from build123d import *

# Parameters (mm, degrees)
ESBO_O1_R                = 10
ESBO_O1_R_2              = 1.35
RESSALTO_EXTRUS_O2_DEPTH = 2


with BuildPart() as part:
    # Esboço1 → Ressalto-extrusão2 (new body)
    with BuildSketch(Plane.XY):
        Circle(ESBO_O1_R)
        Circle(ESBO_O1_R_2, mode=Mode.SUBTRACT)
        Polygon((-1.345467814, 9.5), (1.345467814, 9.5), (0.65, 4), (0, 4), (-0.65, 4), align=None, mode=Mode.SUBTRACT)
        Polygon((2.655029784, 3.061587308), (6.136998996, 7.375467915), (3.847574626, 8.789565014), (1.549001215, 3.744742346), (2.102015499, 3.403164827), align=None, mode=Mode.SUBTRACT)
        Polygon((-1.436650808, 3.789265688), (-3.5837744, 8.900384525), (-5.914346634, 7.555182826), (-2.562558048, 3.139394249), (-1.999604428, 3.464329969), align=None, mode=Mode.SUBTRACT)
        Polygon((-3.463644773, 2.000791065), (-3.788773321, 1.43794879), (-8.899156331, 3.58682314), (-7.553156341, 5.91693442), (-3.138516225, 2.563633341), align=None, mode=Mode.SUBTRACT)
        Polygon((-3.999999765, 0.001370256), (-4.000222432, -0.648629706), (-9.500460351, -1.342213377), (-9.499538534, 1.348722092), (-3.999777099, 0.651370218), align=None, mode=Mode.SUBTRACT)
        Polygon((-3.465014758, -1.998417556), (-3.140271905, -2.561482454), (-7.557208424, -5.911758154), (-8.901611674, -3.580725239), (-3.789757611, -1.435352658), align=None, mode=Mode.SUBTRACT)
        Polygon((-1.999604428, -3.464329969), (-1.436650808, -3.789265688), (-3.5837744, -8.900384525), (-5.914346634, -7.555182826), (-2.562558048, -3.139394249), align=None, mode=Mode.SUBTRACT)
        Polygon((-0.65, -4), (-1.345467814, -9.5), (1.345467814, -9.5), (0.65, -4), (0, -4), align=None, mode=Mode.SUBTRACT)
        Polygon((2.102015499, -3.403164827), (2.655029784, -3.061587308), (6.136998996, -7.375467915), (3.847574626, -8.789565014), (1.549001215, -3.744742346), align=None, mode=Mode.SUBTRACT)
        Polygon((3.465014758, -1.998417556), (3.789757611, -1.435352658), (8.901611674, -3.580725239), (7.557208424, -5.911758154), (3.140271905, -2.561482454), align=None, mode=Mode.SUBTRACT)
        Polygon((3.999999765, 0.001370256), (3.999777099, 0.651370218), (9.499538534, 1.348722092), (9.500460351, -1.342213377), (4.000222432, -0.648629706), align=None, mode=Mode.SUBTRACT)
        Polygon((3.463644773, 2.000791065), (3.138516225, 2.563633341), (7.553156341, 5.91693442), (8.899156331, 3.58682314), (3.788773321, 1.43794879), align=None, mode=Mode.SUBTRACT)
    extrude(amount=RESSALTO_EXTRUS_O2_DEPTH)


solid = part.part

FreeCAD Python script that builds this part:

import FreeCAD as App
import Part
import Sketcher

V = App.Vector
Q = App.Units.Quantity

doc = App.newDocument("Part")
body = doc.addObject("PartDesign::Body", "Body")

# Sketch on XY plane
sketch1 = body.newObject("Sketcher::SketchObject", "Sketch")
sketch1.AttachmentSupport = (doc.getObject("XY_Plane"), [""])
sketch1.MapMode = "FlatFace"
sketch1.addGeometry([
    Part.Circle(V(0, 0, 0), V(0, 0, 1), 10),  # 0
    Part.LineSegment(V(-2.6, -3.1, 0), V(-2, -3.5, 0)),  # 1
    Part.LineSegment(V(-2, -3.5, 0), V(-1.4, -3.8, 0)),  # 2
    Part.LineSegment(V(-1.4, -3.8, 0), V(-3.6, -8.9, 0)),  # 3
    Part.LineSegment(V(-3.6, -8.9, 0), V(-5.9, -7.6, 0)),  # 4
    Part.LineSegment(V(-5.9, -7.6, 0), V(-2.6, -3.1, 0)),  # 5
    Part.LineSegment(V(-3.8, -1.4, 0), V(-3.1, -2.6, 0)),  # 6
    Part.LineSegment(V(-3.1, -2.6, 0), V(-7.6, -5.9, 0)),  # 7
    Part.LineSegment(V(-7.6, -5.9, 0), V(-8.9, -3.6, 0)),  # 8
    Part.LineSegment(V(-8.9, -3.6, 0), V(-3.8, -1.4, 0)),  # 9
    Part.LineSegment(V(-1.3, -9.5, 0), V(-0.7, -4, 0)),  # 10
    Part.LineSegment(V(-0.7, -4, 0), V(0.7, -4, 0)),  # 11
    Part.LineSegment(V(0.7, -4, 0), V(1.3, -9.5, 0)),  # 12
    Part.LineSegment(V(1.3, -9.5, 0), V(-1.3, -9.5, 0)),  # 13
    Part.LineSegment(V(1.5, -3.7, 0), V(2.1, -3.4, 0)),  # 14
    Part.LineSegment(V(2.1, -3.4, 0), V(2.7, -3.1, 0)),  # 15
    Part.LineSegment(V(2.7, -3.1, 0), V(6.1, -7.4, 0)),  # 16
    Part.LineSegment(V(6.1, -7.4, 0), V(3.8, -8.8, 0)),  # 17
    Part.LineSegment(V(3.8, -8.8, 0), V(1.5, -3.7, 0)),  # 18
    Part.LineSegment(V(3.1, -2.6, 0), V(3.8, -1.4, 0)),  # 19
    Part.LineSegment(V(3.8, -1.4, 0), V(8.9, -3.6, 0)),  # 20
    Part.LineSegment(V(8.9, -3.6, 0), V(7.6, -5.9, 0)),  # 21
    Part.LineSegment(V(7.6, -5.9, 0), V(3.1, -2.6, 0)),  # 22
    Part.LineSegment(V(-4, 0.7, 0), V(-4, 0, 0)),  # 23
    Part.LineSegment(V(-4, 0, 0), V(-4, -0.6, 0)),  # 24
    Part.LineSegment(V(-4, -0.6, 0), V(-9.5, -1.3, 0)),  # 25
    Part.LineSegment(V(-9.5, -1.3, 0), V(-9.5, 1.3, 0)),  # 26
    Part.LineSegment(V(-9.5, 1.3, 0), V(-4, 0.7, 0)),  # 27
    Part.LineSegment(V(-3.1, 2.6, 0), V(-3.5, 2, 0)),  # 28
    Part.LineSegment(V(-3.5, 2, 0), V(-3.8, 1.4, 0)),  # 29
    Part.LineSegment(V(-3.8, 1.4, 0), V(-8.9, 3.6, 0)),  # 30
    Part.LineSegment(V(-8.9, 3.6, 0), V(-7.6, 5.9, 0)),  # 31
    Part.LineSegment(V(-7.6, 5.9, 0), V(-3.1, 2.6, 0)),  # 32
    Part.LineSegment(V(-3.6, 8.9, 0), V(-1.4, 3.8, 0)),  # 33
    Part.LineSegment(V(-1.4, 3.8, 0), V(-2, 3.5, 0)),  # 34
    Part.LineSegment(V(-2, 3.5, 0), V(-2.6, 3.1, 0)),  # 35
    Part.LineSegment(V(-2.6, 3.1, 0), V(-5.9, 7.6, 0)),  # 36
    Part.LineSegment(V(-5.9, 7.6, 0), V(-3.6, 8.9, 0)),  # 37
    Part.Circle(V(0, 0, 0), V(0, 0, 1), 1.4),  # 38
    Part.LineSegment(V(4, -0.6, 0), V(4, 0, 0)),  # 39
    Part.LineSegment(V(4, 0, 0), V(4, 0.7, 0)),  # 40
    Part.LineSegment(V(4, 0.7, 0), V(9.5, 1.3, 0)),  # 41
    Part.LineSegment(V(9.5, 1.3, 0), V(9.5, -1.3, 0)),  # 42
    Part.LineSegment(V(9.5, -1.3, 0), V(4, -0.6, 0)),  # 43
    Part.LineSegment(V(3.8, 1.4, 0), V(3.5, 2, 0)),  # 44
    Part.LineSegment(V(3.5, 2, 0), V(3.1, 2.6, 0)),  # 45
    Part.LineSegment(V(3.1, 2.6, 0), V(7.6, 5.9, 0)),  # 46
    Part.LineSegment(V(7.6, 5.9, 0), V(8.9, 3.6, 0)),  # 47
    Part.LineSegment(V(8.9, 3.6, 0), V(3.8, 1.4, 0)),  # 48
    Part.LineSegment(V(-0.7, 4, 0), V(-1.3, 9.5, 0)),  # 49
    Part.LineSegment(V(-1.3, 9.5, 0), V(1.3, 9.5, 0)),  # 50
    Part.LineSegment(V(1.3, 9.5, 0), V(0.7, 4, 0)),  # 51
    Part.LineSegment(V(0.7, 4, 0), V(-0.7, 4, 0)),  # 52
    Part.LineSegment(V(6.1, 7.4, 0), V(2.7, 3.1, 0)),  # 53
    Part.LineSegment(V(2.7, 3.1, 0), V(2.1, 3.4, 0)),  # 54
    Part.LineSegment(V(2.1, 3.4, 0), V(1.5, 3.7, 0)),  # 55
    Part.LineSegment(V(1.5, 3.7, 0), V(3.8, 8.8, 0)),  # 56
    Part.LineSegment(V(3.8, 8.8, 0), V(6.1, 7.4, 0)),  # 57
], False)
sketch1.addConstraint([
    Sketcher.Constraint("Coincident", 1, 2, 2, 1),
    Sketcher.Constraint("Coincident", 2, 2, 3, 1),
    Sketcher.Constraint("Coincident", 3, 2, 4, 1),
    Sketcher.Constraint("Coincident", 4, 2, 5, 1),
    Sketcher.Constraint("Coincident", 5, 2, 1, 1),
    Sketcher.Constraint("Coincident", 6, 2, 7, 1),
    Sketcher.Constraint("Coincident", 7, 2, 8, 1),
    Sketcher.Constraint("Coincident", 8, 2, 9, 1),
    Sketcher.Constraint("Coincident", 9, 2, 6, 1),
    Sketcher.Constraint("Coincident", 10, 2, 11, 1),
    Sketcher.Constraint("Coincident", 11, 2, 12, 1),
    Sketcher.Constraint("Coincident", 12, 2, 13, 1),
    Sketcher.Constraint("Coincident", 13, 2, 10, 1),
    Sketcher.Constraint("Coincident", 14, 2, 15, 1),
    Sketcher.Constraint("Coincident", 15, 2, 16, 1),
    Sketcher.Constraint("Coincident", 16, 2, 17, 1),
    Sketcher.Constraint("Coincident", 17, 2, 18, 1),
    Sketcher.Constraint("Coincident", 18, 2, 14, 1),
    Sketcher.Constraint("Coincident", 19, 2, 20, 1),
    Sketcher.Constraint("Coincident", 20, 2, 21, 1),
    Sketcher.Constraint("Coincident", 21, 2, 22, 1),
    Sketcher.Constraint("Coincident", 22, 2, 19, 1),
    Sketcher.Constraint("Coincident", 23, 2, 24, 1),
    Sketcher.Constraint("Coincident", 24, 2, 25, 1),
    Sketcher.Constraint("Coincident", 25, 2, 26, 1),
    Sketcher.Constraint("Coincident", 26, 2, 27, 1),
    Sketcher.Constraint("Coincident", 27, 2, 23, 1),
    Sketcher.Constraint("Coincident", 28, 2, 29, 1),
    Sketcher.Constraint("Coincident", 29, 2, 30, 1),
    Sketcher.Constraint("Coincident", 30, 2, 31, 1),
    Sketcher.Constraint("Coincident", 31, 2, 32, 1),
    Sketcher.Constraint("Coincident", 32, 2, 28, 1),
    Sketcher.Constraint("Coincident", 33, 2, 34, 1),
    Sketcher.Constraint("Coincident", 34, 2, 35, 1),
    Sketcher.Constraint("Coincident", 35, 2, 36, 1),
    Sketcher.Constraint("Coincident", 36, 2, 37, 1),
    Sketcher.Constraint("Coincident", 37, 2, 33, 1),
    Sketcher.Constraint("Coincident", 39, 2, 40, 1),
    Sketcher.Constraint("Coincident", 40, 2, 41, 1),
    Sketcher.Constraint("Coincident", 41, 2, 42, 1),
    Sketcher.Constraint("Coincident", 42, 2, 43, 1),
    Sketcher.Constraint("Coincident", 43, 2, 39, 1),
    Sketcher.Constraint("Coincident", 44, 2, 45, 1),
    Sketcher.Constraint("Coincident", 45, 2, 46, 1),
    Sketcher.Constraint("Coincident", 46, 2, 47, 1),
    Sketcher.Constraint("Coincident", 47, 2, 48, 1),
    Sketcher.Constraint("Coincident", 48, 2, 44, 1),
    Sketcher.Constraint("Coincident", 49, 2, 50, 1),
    Sketcher.Constraint("Coincident", 50, 2, 51, 1),
    Sketcher.Constraint("Coincident", 51, 2, 52, 1),
    Sketcher.Constraint("Coincident", 52, 2, 49, 1),
    Sketcher.Constraint("Coincident", 53, 2, 54, 1),
    Sketcher.Constraint("Coincident", 54, 2, 55, 1),
    Sketcher.Constraint("Coincident", 55, 2, 56, 1),
    Sketcher.Constraint("Coincident", 56, 2, 57, 1),
    Sketcher.Constraint("Coincident", 57, 2, 53, 1),
    Sketcher.Constraint("Horizontal", 11),
    Sketcher.Constraint("Horizontal", 13),
    Sketcher.Constraint("Horizontal", 50),
    Sketcher.Constraint("Horizontal", 52),
    Sketcher.Constraint("Coincident", 0, 3, -1, 1),
    Sketcher.Constraint("Coincident", 38, 3, -1, 1),
    Sketcher.Constraint("Symmetric", 12, 2, 49, 2, -1, 1),
    Sketcher.Constraint("Symmetric", 10, 2, 51, 2, -1, 1),
    Sketcher.Constraint("Symmetric", 9, 2, 19, 2, -2),
    Sketcher.Constraint("Symmetric", 8, 2, 20, 2, -2),
    Sketcher.Constraint("Symmetric", 7, 2, 21, 2, -2),
    Sketcher.Constraint("Symmetric", 6, 2, 22, 2, -2),
    Sketcher.Constraint("Symmetric", 23, 2, 39, 2, -2),
    Sketcher.Constraint("Symmetric", 27, 2, 40, 2, -2),
    Sketcher.Constraint("Symmetric", 26, 2, 41, 2, -2),
    Sketcher.Constraint("Symmetric", 25, 2, 42, 2, -2),
    Sketcher.Constraint("Symmetric", 24, 2, 43, 2, -2),
    Sketcher.Constraint("Symmetric", 28, 2, 44, 2, -2),
    Sketcher.Constraint("Symmetric", 32, 2, 45, 2, -2),
    Sketcher.Constraint("Symmetric", 31, 2, 46, 2, -2),
    Sketcher.Constraint("Symmetric", 30, 2, 47, 2, -2),
    Sketcher.Constraint("Symmetric", 29, 2, 48, 2, -2),
    Sketcher.Constraint("Symmetric", 2, 2, 33, 2, -1),
    Sketcher.Constraint("Symmetric", 1, 2, 34, 2, -1),
    Sketcher.Constraint("Symmetric", 5, 2, 35, 2, -1),
    Sketcher.Constraint("Symmetric", 4, 2, 36, 2, -1),
    Sketcher.Constraint("Symmetric", 3, 2, 37, 2, -1),
    Sketcher.Constraint("Symmetric", 15, 2, 53, 2, -1),
    Sketcher.Constraint("Symmetric", 14, 2, 54, 2, -1),
    Sketcher.Constraint("Symmetric", 18, 2, 55, 2, -1),
    Sketcher.Constraint("Symmetric", 17, 2, 56, 2, -1),
    Sketcher.Constraint("Symmetric", 16, 2, 57, 2, -1),
    Sketcher.Constraint("Parallel", 1, 2),
    Sketcher.Constraint("Parallel", 2, 4),
    Sketcher.Constraint("Parallel", 6, 8),
    Sketcher.Constraint("Parallel", 14, 15),
    Sketcher.Constraint("Parallel", 15, 17),
    Sketcher.Constraint("Parallel", 23, 24),
    Sketcher.Constraint("Parallel", 24, 26),
    Sketcher.Constraint("Parallel", 28, 29),
    Sketcher.Constraint("Parallel", 29, 31),
    Sketcher.Constraint("Parallel", 12, 49),
    Sketcher.Constraint("Parallel", 10, 51),
    Sketcher.Constraint("Vertical", 13, 2, 49, 2),
    Sketcher.Constraint("Vertical", 11, 2, 51, 2),
    Sketcher.Constraint("Equal", 1, 2),
    Sketcher.Constraint("Equal", 3, 5),
    Sketcher.Constraint("Equal", 5, 7),
    Sketcher.Constraint("Equal", 4, 8),
    Sketcher.Constraint("Equal", 7, 9),
    Sketcher.Constraint("Equal", 9, 10),
    Sketcher.Constraint("Equal", 2, 14),
    Sketcher.Constraint("Equal", 14, 15),
    Sketcher.Constraint("Equal", 12, 16),
    Sketcher.Constraint("Equal", 8, 17),
    Sketcher.Constraint("Equal", 16, 18),
    Sketcher.Constraint("Equal", 15, 23),
    Sketcher.Constraint("Equal", 23, 24),
    Sketcher.Constraint("Equal", 22, 25),
    Sketcher.Constraint("Equal", 21, 26),
    Sketcher.Constraint("Equal", 25, 27),
    Sketcher.Constraint("Equal", 24, 28),
    Sketcher.Constraint("Equal", 28, 29),
    Sketcher.Constraint("Equal", 27, 30),
    Sketcher.Constraint("Equal", 26, 31),
    Sketcher.Constraint("Equal", 30, 32),
    Sketcher.Constraint("Diameter", 0, Q("20 mm")),
    Sketcher.Constraint("Diameter", 38, Q("2.7 mm")),
    Sketcher.Constraint("DistanceX", 11, 1, 11, 2, Q("1.3 mm")),
    Sketcher.Constraint("DistanceY", 10, 2, -1, 1, Q("4 mm")),
    Sketcher.Constraint("DistanceX", 23, 2, -1, 1, Q("4 mm")),
    Sketcher.Constraint("Distance", 6, Q("1.3 mm")),
    Sketcher.Constraint("DistanceY", 12, 2, -1, 1, Q("9.5 mm")),
    Sketcher.Constraint("DistanceY", 24, 2, 27, 2, Q("1.3 mm")),
    Sketcher.Constraint("DistanceX", -1, 1, 16, 2, Q("6.136999 mm")),
    Sketcher.Constraint("DistanceX", -1, 1, 18, 2, Q("1.549001 mm")),
    Sketcher.Constraint("DistanceX", 30, 2, 31, 2, Q("1.346 mm")),
    Sketcher.Constraint("DistanceY", 3, 2, 4, 2, Q("1.345202 mm")),
    Sketcher.Constraint("DistanceX", 9, 2, 5, 2, Q("1.2272 mm")),
    Sketcher.Constraint("DistanceY", 2, 2, 14, 2, Q("0.386101 mm")),
    Sketcher.Constraint("DistanceY", 17, 2, 14, 2, Q("5.3864 mm")),
    Sketcher.Constraint("DistanceY", 1, 2, 24, 2, Q("2.8157 mm")),
    Sketcher.Constraint("DistanceY", 9, 2, 29, 2, Q("2.873301 mm")),
    Sketcher.Constraint("DistanceY", 26, 2, 30, 2, Q("2.238101 mm")),
    Sketcher.Constraint("DistanceY", 45, 2, 46, 2, Q("3.353301 mm")),
    Sketcher.Constraint("DistanceX", 54, 2, 45, 2, Q("1.036501 mm")),
    Sketcher.Constraint("DistanceY", 1, 2, -1, 1, Q("3.46433 mm")),
    Sketcher.Constraint("DistanceX", 2, 2, -1, 1, Q("1.436651 mm")),
    Sketcher.Constraint("DistanceX", 6, 2, -1, 1, Q("3.140272 mm")),
    Sketcher.Constraint("DistanceY", 7, 2, -1, 1, Q("5.911758 mm")),
])
pad1 = body.newObject("PartDesign::Pad", "Pad")
pad1.Profile = sketch1
pad1.Length = 2

doc.recompute()
